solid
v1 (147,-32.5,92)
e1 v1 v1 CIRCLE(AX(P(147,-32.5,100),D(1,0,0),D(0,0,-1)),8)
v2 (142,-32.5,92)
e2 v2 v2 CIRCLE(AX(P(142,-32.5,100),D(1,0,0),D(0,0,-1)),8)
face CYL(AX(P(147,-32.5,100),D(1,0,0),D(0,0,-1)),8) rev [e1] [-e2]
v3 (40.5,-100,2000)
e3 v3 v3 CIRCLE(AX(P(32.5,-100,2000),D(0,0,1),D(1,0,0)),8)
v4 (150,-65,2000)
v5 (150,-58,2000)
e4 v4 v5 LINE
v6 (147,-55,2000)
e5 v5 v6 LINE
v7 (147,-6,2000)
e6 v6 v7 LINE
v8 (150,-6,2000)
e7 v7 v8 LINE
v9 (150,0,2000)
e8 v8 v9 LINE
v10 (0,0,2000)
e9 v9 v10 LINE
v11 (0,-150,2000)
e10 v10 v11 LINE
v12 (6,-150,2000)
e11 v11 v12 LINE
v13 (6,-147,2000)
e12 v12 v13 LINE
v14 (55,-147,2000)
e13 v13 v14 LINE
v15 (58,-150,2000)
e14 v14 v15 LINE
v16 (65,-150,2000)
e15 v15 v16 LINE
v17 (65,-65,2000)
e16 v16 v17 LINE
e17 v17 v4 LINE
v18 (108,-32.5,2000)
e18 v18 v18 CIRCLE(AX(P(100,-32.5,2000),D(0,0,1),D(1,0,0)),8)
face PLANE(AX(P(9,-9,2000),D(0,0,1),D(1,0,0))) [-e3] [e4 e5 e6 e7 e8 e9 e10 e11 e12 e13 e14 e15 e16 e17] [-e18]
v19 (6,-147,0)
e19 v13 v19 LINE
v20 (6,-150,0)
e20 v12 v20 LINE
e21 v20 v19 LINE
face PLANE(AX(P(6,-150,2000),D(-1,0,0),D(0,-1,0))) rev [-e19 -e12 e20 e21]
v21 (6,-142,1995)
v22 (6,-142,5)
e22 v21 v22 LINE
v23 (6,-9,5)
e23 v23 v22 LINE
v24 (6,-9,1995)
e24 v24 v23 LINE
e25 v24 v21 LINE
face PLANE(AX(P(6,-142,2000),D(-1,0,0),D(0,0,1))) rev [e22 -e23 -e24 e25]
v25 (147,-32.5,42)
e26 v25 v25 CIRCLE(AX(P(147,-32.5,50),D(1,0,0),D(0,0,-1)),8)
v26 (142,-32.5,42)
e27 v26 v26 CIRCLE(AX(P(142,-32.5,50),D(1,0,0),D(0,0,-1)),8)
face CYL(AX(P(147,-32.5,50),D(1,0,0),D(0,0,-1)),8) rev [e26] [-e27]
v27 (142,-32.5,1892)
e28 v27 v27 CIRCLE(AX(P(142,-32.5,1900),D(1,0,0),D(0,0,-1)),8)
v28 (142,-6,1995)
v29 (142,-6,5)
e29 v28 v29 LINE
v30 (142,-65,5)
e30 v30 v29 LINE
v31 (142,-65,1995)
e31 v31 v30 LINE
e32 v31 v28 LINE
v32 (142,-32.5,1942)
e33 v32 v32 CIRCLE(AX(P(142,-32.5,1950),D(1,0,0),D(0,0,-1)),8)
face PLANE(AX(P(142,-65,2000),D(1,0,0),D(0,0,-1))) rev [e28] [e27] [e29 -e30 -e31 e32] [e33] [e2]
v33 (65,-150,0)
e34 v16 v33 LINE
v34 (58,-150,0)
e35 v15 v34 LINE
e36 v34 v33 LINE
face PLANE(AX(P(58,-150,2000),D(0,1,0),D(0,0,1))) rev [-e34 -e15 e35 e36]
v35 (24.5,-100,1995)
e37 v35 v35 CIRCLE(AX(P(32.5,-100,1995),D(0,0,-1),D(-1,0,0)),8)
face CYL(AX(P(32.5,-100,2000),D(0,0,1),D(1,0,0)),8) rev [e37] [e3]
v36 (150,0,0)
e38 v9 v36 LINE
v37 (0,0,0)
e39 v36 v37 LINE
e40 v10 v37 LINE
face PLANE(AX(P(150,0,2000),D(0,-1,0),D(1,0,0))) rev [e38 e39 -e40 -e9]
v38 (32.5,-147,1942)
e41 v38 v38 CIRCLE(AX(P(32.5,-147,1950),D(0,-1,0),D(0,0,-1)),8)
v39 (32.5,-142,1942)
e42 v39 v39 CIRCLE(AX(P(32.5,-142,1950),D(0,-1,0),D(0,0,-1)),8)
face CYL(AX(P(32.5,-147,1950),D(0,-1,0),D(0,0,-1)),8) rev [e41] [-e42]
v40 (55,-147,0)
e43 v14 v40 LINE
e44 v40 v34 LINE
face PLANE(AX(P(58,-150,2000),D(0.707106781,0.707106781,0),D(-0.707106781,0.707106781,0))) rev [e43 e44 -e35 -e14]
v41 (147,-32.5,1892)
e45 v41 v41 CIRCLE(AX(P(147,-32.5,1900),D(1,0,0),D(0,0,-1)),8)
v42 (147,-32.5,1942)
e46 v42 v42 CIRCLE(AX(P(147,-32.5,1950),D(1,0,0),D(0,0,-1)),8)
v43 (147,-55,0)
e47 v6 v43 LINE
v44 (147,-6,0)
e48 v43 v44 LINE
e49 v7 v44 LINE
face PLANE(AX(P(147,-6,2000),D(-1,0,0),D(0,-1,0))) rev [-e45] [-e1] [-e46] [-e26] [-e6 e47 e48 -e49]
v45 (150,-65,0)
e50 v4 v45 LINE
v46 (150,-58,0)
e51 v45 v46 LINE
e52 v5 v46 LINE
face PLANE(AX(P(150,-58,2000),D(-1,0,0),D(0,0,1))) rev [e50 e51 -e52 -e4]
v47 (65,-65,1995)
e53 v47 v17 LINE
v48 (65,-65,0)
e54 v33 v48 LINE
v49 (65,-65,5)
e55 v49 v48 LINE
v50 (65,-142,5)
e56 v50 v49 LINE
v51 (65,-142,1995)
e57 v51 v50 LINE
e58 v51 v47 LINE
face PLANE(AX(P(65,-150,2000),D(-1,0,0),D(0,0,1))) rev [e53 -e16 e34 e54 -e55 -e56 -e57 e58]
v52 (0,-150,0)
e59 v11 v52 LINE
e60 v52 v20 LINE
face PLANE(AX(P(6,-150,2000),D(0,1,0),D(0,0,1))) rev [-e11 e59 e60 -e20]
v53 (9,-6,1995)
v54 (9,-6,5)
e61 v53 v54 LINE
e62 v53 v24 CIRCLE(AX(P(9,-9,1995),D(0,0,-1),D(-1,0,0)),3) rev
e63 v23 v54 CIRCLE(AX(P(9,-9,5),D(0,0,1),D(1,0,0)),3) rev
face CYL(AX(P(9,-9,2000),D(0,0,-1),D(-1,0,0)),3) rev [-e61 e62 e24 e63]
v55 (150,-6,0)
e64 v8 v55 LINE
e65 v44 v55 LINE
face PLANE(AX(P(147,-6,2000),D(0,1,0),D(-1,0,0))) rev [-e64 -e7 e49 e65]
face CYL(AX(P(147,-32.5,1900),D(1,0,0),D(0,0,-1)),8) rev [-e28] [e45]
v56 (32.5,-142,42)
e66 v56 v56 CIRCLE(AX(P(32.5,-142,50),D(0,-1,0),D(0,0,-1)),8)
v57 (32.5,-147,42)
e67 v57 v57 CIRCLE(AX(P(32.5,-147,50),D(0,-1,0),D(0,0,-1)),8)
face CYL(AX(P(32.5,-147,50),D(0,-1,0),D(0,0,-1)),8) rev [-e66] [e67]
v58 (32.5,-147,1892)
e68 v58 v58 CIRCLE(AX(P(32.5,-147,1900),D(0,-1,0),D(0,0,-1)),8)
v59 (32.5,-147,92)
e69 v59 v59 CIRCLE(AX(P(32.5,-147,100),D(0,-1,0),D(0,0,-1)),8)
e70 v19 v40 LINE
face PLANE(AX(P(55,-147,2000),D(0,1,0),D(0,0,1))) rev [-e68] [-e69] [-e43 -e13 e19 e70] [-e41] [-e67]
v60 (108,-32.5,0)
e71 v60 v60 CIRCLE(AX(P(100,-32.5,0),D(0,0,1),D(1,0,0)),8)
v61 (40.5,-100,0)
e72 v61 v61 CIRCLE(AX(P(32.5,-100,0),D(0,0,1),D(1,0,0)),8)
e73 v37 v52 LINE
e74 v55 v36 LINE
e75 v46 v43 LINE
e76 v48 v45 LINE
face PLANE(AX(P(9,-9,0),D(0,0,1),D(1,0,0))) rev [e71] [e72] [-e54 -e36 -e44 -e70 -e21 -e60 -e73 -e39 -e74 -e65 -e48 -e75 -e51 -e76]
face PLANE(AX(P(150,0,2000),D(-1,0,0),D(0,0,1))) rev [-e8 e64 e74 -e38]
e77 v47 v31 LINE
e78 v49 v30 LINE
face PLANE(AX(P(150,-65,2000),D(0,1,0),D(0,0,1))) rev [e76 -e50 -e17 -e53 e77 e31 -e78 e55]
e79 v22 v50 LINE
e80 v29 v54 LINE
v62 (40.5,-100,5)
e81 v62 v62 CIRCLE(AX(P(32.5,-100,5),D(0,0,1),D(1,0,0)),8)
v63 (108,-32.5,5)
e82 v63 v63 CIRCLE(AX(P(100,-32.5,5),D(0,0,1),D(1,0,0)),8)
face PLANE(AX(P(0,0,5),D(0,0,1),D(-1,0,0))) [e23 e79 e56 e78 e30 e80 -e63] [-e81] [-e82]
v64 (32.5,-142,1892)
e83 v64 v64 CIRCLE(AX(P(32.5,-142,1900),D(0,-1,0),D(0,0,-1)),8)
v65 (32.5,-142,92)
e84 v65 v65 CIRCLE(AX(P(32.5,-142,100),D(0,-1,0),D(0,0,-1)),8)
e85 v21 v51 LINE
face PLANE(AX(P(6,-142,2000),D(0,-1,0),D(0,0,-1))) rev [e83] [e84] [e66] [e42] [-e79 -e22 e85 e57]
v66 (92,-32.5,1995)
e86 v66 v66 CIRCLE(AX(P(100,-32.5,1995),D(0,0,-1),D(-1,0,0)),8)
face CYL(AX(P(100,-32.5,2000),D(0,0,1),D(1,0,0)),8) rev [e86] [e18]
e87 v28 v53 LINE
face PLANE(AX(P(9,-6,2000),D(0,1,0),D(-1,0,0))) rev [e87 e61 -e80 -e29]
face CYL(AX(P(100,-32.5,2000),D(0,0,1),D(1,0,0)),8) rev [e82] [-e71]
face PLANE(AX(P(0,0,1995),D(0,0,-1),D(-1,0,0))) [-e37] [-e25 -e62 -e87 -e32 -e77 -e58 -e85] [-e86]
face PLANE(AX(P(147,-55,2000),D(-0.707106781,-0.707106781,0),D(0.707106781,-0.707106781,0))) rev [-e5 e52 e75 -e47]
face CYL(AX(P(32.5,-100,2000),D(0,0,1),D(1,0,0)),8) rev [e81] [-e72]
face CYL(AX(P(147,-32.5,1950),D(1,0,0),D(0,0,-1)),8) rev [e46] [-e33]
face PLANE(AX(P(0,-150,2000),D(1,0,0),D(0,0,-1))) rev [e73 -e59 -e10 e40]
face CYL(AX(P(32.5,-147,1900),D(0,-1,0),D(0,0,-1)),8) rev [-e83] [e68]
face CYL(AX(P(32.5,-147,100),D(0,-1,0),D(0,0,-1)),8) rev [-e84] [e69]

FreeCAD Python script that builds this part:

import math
import FreeCAD as App
import Part
import Sketcher

V = App.Vector


def add_polygon(sketch, points):
    """Adds a closed chain of lines whose ends are joined by coincident constraints."""
    first, n = sketch.GeometryCount, len(points)
    for a, b in zip(points, points[1:] + points[:1]):
        sketch.addGeometry(Part.LineSegment(App.Vector(*a, 0), App.Vector(*b, 0)), False)
    for i in range(n):
        sketch.addConstraint(Sketcher.Constraint("Coincident", first + i, 2, first + (i + 1) % n, 1))

doc = App.newDocument("Part")
body = doc.addObject("PartDesign::Body", "Body")

# Sketch on XY plane
sketch1 = body.newObject("Sketcher::SketchObject", "Sketch")
sketch1.AttachmentSupport = (doc.getObject("XY_Plane"), [""])
sketch1.MapMode = "FlatFace"
sketch1.addGeometry([
    Part.LineSegment(V(6, -147, 0), V(55, -147, 0)),  # 0
    Part.LineSegment(V(55, -147, 0), V(58, -150, 0)),  # 1
    Part.LineSegment(V(58, -150, 0), V(65, -150, 0)),  # 2
    Part.LineSegment(V(65, -150, 0), V(65, -142, 0)),  # 3
    Part.LineSegment(V(65, -142, 0), V(6, -142, 0)),  # 4
    Part.LineSegment(V(6, -142, 0), V(6, -9, 0)),  # 5
    Part.ArcOfCircle(Part.Circle(V(9, -9, 0), V(0, 0, 1), 3), math.radians(90), math.radians(180)),  # 6
    Part.LineSegment(V(9, -6, 0), V(142, -6, 0)),  # 7
    Part.LineSegment(V(142, -6, 0), V(142, -65, 0)),  # 8
    Part.LineSegment(V(142, -65, 0), V(150, -65, 0)),  # 9
    Part.LineSegment(V(150, -65, 0), V(150, -58, 0)),  # 10
    Part.LineSegment(V(150, -58, 0), V(147, -55, 0)),  # 11
    Part.LineSegment(V(147, -55, 0), V(147, -6, 0)),  # 12
    Part.LineSegment(V(147, -6, 0), V(150, -6, 0)),  # 13
    Part.LineSegment(V(150, -6, 0), V(150, 0, 0)),  # 14
    Part.LineSegment(V(150, 0, 0), V(0, 0, 0)),  # 15
    Part.LineSegment(V(0, 0, 0), V(0, -150, 0)),  # 16
    Part.LineSegment(V(0, -150, 0), V(6, -150, 0)),  # 17
    Part.LineSegment(V(6, -150, 0), V(6, -147, 0)),  # 18
], False)
sketch1.addConstraint([
    Sketcher.Constraint("Coincident", 0, 2, 1, 1),
    Sketcher.Constraint("Coincident", 1, 2, 2, 1),
    Sketcher.Constraint("Coincident", 2, 2, 3, 1),
    Sketcher.Constraint("Coincident", 3, 2, 4, 1),
    Sketcher.Constraint("Coincident", 4, 2, 5, 1),
    Sketcher.Constraint("Tangent", 5, 2, 6, 2),
    Sketcher.Constraint("Tangent", 6, 1, 7, 1),
    Sketcher.Constraint("Coincident", 7, 2, 8, 1),
    Sketcher.Constraint("Coincident", 8, 2, 9, 1),
    Sketcher.Constraint("Coincident", 9, 2, 10, 1),
    Sketcher.Constraint("Coincident", 10, 2, 11, 1),
    Sketcher.Constraint("Coincident", 11, 2, 12, 1),
    Sketcher.Constraint("Coincident", 12, 2, 13, 1),
    Sketcher.Constraint("Coincident", 13, 2, 14, 1),
    Sketcher.Constraint("Coincident", 14, 2, 15, 1),
    Sketcher.Constraint("Coincident", 15, 2, 16, 1),
    Sketcher.Constraint("Coincident", 16, 2, 17, 1),
    Sketcher.Constraint("Coincident", 17, 2, 18, 1),
    Sketcher.Constraint("Coincident", 18, 2, 0, 1),
    Sketcher.Constraint("Horizontal", 0),
    Sketcher.Constraint("Horizontal", 2),
    Sketcher.Constraint("Vertical", 3),
    Sketcher.Constraint("Horizontal", 4),
    Sketcher.Constraint("Vertical", 5),
    Sketcher.Constraint("Horizontal", 7),
    Sketcher.Constraint("Vertical", 8),
    Sketcher.Constraint("Horizontal", 9),
    Sketcher.Constraint("Vertical", 10),
    Sketcher.Constraint("Vertical", 12),
    Sketcher.Constraint("Horizontal", 13),
    Sketcher.Constraint("Vertical", 14),
    Sketcher.Constraint("Horizontal", 15),
    Sketcher.Constraint("Vertical", 16),
    Sketcher.Constraint("Horizontal", 17),
    Sketcher.Constraint("Vertical", 18),
    Sketcher.Constraint("Coincident", 15, 2, -1, 1),
    Sketcher.Constraint("Parallel", 1, 11),
    Sketcher.Constraint("Horizontal", 7, 2, 12, 2),
    Sketcher.Constraint("Horizontal", 2, 2, 16, 2),
    Sketcher.Constraint("Vertical", 10, 2, 13, 2),
    Sketcher.Constraint("Vertical", 5, 2, 17, 2),
    Sketcher.Constraint("Equal", 9, 3),
    Sketcher.Constraint("Equal", 7, 5),
    Sketcher.Constraint("Equal", 4, 8),
    Sketcher.Constraint("Equal", 2, 10),
    Sketcher.Constraint("Equal", 0, 12),
    Sketcher.Constraint("Equal", 17, 14),
    Sketcher.Constraint("Equal", 13, 18),
    Sketcher.Constraint("Radius", 6, 3.0),
    Sketcher.Constraint("DistanceX", 0, 1, 0, 2, 49.0),
    Sketcher.Constraint("DistanceX", 2, 1, 2, 2, 7.0),
    Sketcher.Constraint("DistanceX", 4, 2, 4, 1, 59.0),
    Sketcher.Constraint("DistanceX", 7, 1, 7, 2, 133.0),
    Sketcher.Constraint("DistanceX", 9, 1, 9, 2, 8.0),
    Sketcher.Constraint("DistanceX", 15, 2, 15, 1, 150.0),
])
pad1 = body.newObject("PartDesign::Pad", "Pad")
pad1.Profile = sketch1
pad1.Length = 2000

# Sketch on XY plane
sketch2 = body.newObject("Sketcher::SketchObject", "Sketch001")
sketch2.AttachmentSupport = (doc.getObject("XY_Plane"), [""])
sketch2.MapMode = "FlatFace"
sketch2.AttachmentOffset = App.Placement(V(0, 0, 2000), App.Rotation())
add_polygon(sketch2, [(65, -142), (65, -65), (142, -65), (142, -6), (6, -6), (6, -142)])  # lines 0-5
sketch2.addConstraint([
    Sketcher.Constraint("Vertical", 0),
    Sketcher.Constraint("Horizontal", 1),
    Sketcher.Constraint("Vertical", 2),
    Sketcher.Constraint("Horizontal", 3),
    Sketcher.Constraint("Vertical", 4),
    Sketcher.Constraint("Horizontal", 5),
    Sketcher.Constraint("Equal", 1, 0),
    Sketcher.Constraint("Equal", 5, 2),
    Sketcher.Constraint("DistanceX", 1, 1, 1, 2, 77.0),
    Sketcher.Constraint("DistanceX", 3, 2, 3, 1, 136.0),
    Sketcher.Constraint("DistanceX", -1, 1, 0, 2, 65.0),
    Sketcher.Constraint("DistanceY", 0, 2, -1, 1, 65.0),
])
pad2 = body.newObject("PartDesign::Pad", "Pad001")
pad2.Profile = sketch2
pad2.Length = 5
pad2.Reversed = True
doc.recompute()

datumplane = body.newObject("PartDesign::Plane", "DatumPlane")
datumplane.AttachmentSupport = (doc.getObject("XY_Plane"), [""])
datumplane.MapMode = "FlatFace"
datumplane.AttachmentOffset = App.Placement(V(0, 0, 1000), App.Rotation())
mirrored = body.newObject("PartDesign::Mirrored", "Mirrored")
mirrored.Originals = [pad2]
mirrored.MirrorPlane = (datumplane, [""])
body.Tip = mirrored

# Sketch on XY plane
sketch3 = body.newObject("Sketcher::SketchObject", "Sketch002")
sketch3.AttachmentSupport = (doc.getObject("XY_Plane"), [""])
sketch3.MapMode = "FlatFace"
sketch3.AttachmentOffset = App.Placement(V(0, 0, 2000), App.Rotation())
sketch3.addGeometry([
    Part.Circle(V(100, -32.5, 0), V(0, 0, 1), 8),
    Part.Circle(V(32.5, -100, 0), V(0, 0, 1), 8),
], False)
sketch3.addConstraint([
    Sketcher.Constraint("Equal", 0, 1),
    Sketcher.Constraint("Diameter", 0, 16.0),
    Sketcher.Constraint("DistanceX", -1, 1, 0, 3, 100.0),
    Sketcher.Constraint("DistanceY", 1, 3, -1, 1, 100.0),
    Sketcher.Constraint("DistanceY", 0, 3, -1, 1, 32.5),
    Sketcher.Constraint("DistanceX", -1, 1, 1, 3, 32.5),
])
doc.recompute()
hole = body.newObject("PartDesign::Hole", "Hole")
hole.Profile = sketch3
hole.ThreadType = "None"
hole.Diameter = 16
hole.DepthType = "ThroughAll"

# Sketch on YZ plane
sketch4 = body.newObject("Sketcher::SketchObject", "Sketch003")
sketch4.AttachmentSupport = (doc.getObject("YZ_Plane"), [""])
sketch4.MapMode = "FlatFace"
sketch4.AttachmentOffset = App.Placement(V(0, 0, 147), App.Rotation())
sketch4.addGeometry([
    Part.Circle(V(-32.5, 1950, 0), V(0, 0, 1), 8),
    Part.Circle(V(-32.5, 1900, 0), V(0, 0, 1), 8),
    Part.Circle(V(-32.5, 50, 0), V(0, 0, 1), 8),
    Part.Circle(V(-32.5, 100, 0), V(0, 0, 1), 8),
], False)
sketch4.addConstraint([
    Sketcher.Constraint("Equal", 0, 1),
    Sketcher.Constraint("Equal", 1, 2),
    Sketcher.Constraint("Equal", 2, 3),
    Sketcher.Constraint("Vertical", 0, 3, 1, 3),
    Sketcher.Constraint("Vertical", 1, 3, 2, 3),
    Sketcher.Constraint("Vertical", 2, 3, 3, 3),
    Sketcher.Constraint("Diameter", 0, 16.0),
    Sketcher.Constraint("DistanceY", -1, 1, 0, 3, 1950.0),
    Sketcher.Constraint("DistanceY", -1, 1, 1, 3, 1900.0),
    Sketcher.Constraint("DistanceY", -1, 1, 2, 3, 50.0),
    Sketcher.Constraint("DistanceY", -1, 1, 3, 3, 100.0),
    Sketcher.Constraint("DistanceX", 0, 3, -1, 1, 32.5),
])
doc.recompute()
hole2 = body.newObject("PartDesign::Hole", "Hole001")
hole2.Profile = sketch4
hole2.ThreadType = "None"
hole2.Diameter = 16
hole2.DepthType = "Dimension"
hole2.Depth = 5
hole2.DrillPoint = "Flat"

# Sketch on XZ plane
sketch5 = body.newObject("Sketcher::SketchObject", "Sketch004")
sketch5.AttachmentSupport = (doc.getObject("XZ_Plane"), [""])
sketch5.MapMode = "FlatFace"
sketch5.AttachmentOffset = App.Placement(V(0, 0, 147), App.Rotation())
sketch5.addGeometry([
    Part.Circle(V(32.5, 1950, 0), V(0, 0, 1), 8),
    Part.Circle(V(32.5, 1900, 0), V(0, 0, 1), 8),
    Part.Circle(V(32.5, 50, 0), V(0, 0, 1), 8),
    Part.Circle(V(32.5, 100, 0), V(0, 0, 1), 8),
], False)
sketch5.addConstraint([
    Sketcher.Constraint("Equal", 0, 1),
    Sketcher.Constraint("Equal", 1, 2),
    Sketcher.Constraint("Equal", 2, 3),
    Sketcher.Constraint("Vertical", 0, 3, 1, 3),
    Sketcher.Constraint("Vertical", 1, 3, 2, 3),
    Sketcher.Constraint("Vertical", 2, 3, 3, 3),
    Sketcher.Constraint("Diameter", 0, 16.0),
    Sketcher.Constraint("DistanceY", -1, 1, 0, 3, 1950.0),
    Sketcher.Constraint("DistanceY", -1, 1, 1, 3, 1900.0),
    Sketcher.Constraint("DistanceY", -1, 1, 2, 3, 50.0),
    Sketcher.Constraint("DistanceY", -1, 1, 3, 3, 100.0),
    Sketcher.Constraint("DistanceX", -1, 1, 0, 3, 32.5),
])
doc.recompute()
hole3 = body.newObject("PartDesign::Hole", "Hole002")
hole3.Profile = sketch5
hole3.ThreadType = "None"
hole3.Diameter = 16
hole3.DepthType = "Dimension"
hole3.Depth = 5
hole3.DrillPoint = "Flat"

doc.recompute()
